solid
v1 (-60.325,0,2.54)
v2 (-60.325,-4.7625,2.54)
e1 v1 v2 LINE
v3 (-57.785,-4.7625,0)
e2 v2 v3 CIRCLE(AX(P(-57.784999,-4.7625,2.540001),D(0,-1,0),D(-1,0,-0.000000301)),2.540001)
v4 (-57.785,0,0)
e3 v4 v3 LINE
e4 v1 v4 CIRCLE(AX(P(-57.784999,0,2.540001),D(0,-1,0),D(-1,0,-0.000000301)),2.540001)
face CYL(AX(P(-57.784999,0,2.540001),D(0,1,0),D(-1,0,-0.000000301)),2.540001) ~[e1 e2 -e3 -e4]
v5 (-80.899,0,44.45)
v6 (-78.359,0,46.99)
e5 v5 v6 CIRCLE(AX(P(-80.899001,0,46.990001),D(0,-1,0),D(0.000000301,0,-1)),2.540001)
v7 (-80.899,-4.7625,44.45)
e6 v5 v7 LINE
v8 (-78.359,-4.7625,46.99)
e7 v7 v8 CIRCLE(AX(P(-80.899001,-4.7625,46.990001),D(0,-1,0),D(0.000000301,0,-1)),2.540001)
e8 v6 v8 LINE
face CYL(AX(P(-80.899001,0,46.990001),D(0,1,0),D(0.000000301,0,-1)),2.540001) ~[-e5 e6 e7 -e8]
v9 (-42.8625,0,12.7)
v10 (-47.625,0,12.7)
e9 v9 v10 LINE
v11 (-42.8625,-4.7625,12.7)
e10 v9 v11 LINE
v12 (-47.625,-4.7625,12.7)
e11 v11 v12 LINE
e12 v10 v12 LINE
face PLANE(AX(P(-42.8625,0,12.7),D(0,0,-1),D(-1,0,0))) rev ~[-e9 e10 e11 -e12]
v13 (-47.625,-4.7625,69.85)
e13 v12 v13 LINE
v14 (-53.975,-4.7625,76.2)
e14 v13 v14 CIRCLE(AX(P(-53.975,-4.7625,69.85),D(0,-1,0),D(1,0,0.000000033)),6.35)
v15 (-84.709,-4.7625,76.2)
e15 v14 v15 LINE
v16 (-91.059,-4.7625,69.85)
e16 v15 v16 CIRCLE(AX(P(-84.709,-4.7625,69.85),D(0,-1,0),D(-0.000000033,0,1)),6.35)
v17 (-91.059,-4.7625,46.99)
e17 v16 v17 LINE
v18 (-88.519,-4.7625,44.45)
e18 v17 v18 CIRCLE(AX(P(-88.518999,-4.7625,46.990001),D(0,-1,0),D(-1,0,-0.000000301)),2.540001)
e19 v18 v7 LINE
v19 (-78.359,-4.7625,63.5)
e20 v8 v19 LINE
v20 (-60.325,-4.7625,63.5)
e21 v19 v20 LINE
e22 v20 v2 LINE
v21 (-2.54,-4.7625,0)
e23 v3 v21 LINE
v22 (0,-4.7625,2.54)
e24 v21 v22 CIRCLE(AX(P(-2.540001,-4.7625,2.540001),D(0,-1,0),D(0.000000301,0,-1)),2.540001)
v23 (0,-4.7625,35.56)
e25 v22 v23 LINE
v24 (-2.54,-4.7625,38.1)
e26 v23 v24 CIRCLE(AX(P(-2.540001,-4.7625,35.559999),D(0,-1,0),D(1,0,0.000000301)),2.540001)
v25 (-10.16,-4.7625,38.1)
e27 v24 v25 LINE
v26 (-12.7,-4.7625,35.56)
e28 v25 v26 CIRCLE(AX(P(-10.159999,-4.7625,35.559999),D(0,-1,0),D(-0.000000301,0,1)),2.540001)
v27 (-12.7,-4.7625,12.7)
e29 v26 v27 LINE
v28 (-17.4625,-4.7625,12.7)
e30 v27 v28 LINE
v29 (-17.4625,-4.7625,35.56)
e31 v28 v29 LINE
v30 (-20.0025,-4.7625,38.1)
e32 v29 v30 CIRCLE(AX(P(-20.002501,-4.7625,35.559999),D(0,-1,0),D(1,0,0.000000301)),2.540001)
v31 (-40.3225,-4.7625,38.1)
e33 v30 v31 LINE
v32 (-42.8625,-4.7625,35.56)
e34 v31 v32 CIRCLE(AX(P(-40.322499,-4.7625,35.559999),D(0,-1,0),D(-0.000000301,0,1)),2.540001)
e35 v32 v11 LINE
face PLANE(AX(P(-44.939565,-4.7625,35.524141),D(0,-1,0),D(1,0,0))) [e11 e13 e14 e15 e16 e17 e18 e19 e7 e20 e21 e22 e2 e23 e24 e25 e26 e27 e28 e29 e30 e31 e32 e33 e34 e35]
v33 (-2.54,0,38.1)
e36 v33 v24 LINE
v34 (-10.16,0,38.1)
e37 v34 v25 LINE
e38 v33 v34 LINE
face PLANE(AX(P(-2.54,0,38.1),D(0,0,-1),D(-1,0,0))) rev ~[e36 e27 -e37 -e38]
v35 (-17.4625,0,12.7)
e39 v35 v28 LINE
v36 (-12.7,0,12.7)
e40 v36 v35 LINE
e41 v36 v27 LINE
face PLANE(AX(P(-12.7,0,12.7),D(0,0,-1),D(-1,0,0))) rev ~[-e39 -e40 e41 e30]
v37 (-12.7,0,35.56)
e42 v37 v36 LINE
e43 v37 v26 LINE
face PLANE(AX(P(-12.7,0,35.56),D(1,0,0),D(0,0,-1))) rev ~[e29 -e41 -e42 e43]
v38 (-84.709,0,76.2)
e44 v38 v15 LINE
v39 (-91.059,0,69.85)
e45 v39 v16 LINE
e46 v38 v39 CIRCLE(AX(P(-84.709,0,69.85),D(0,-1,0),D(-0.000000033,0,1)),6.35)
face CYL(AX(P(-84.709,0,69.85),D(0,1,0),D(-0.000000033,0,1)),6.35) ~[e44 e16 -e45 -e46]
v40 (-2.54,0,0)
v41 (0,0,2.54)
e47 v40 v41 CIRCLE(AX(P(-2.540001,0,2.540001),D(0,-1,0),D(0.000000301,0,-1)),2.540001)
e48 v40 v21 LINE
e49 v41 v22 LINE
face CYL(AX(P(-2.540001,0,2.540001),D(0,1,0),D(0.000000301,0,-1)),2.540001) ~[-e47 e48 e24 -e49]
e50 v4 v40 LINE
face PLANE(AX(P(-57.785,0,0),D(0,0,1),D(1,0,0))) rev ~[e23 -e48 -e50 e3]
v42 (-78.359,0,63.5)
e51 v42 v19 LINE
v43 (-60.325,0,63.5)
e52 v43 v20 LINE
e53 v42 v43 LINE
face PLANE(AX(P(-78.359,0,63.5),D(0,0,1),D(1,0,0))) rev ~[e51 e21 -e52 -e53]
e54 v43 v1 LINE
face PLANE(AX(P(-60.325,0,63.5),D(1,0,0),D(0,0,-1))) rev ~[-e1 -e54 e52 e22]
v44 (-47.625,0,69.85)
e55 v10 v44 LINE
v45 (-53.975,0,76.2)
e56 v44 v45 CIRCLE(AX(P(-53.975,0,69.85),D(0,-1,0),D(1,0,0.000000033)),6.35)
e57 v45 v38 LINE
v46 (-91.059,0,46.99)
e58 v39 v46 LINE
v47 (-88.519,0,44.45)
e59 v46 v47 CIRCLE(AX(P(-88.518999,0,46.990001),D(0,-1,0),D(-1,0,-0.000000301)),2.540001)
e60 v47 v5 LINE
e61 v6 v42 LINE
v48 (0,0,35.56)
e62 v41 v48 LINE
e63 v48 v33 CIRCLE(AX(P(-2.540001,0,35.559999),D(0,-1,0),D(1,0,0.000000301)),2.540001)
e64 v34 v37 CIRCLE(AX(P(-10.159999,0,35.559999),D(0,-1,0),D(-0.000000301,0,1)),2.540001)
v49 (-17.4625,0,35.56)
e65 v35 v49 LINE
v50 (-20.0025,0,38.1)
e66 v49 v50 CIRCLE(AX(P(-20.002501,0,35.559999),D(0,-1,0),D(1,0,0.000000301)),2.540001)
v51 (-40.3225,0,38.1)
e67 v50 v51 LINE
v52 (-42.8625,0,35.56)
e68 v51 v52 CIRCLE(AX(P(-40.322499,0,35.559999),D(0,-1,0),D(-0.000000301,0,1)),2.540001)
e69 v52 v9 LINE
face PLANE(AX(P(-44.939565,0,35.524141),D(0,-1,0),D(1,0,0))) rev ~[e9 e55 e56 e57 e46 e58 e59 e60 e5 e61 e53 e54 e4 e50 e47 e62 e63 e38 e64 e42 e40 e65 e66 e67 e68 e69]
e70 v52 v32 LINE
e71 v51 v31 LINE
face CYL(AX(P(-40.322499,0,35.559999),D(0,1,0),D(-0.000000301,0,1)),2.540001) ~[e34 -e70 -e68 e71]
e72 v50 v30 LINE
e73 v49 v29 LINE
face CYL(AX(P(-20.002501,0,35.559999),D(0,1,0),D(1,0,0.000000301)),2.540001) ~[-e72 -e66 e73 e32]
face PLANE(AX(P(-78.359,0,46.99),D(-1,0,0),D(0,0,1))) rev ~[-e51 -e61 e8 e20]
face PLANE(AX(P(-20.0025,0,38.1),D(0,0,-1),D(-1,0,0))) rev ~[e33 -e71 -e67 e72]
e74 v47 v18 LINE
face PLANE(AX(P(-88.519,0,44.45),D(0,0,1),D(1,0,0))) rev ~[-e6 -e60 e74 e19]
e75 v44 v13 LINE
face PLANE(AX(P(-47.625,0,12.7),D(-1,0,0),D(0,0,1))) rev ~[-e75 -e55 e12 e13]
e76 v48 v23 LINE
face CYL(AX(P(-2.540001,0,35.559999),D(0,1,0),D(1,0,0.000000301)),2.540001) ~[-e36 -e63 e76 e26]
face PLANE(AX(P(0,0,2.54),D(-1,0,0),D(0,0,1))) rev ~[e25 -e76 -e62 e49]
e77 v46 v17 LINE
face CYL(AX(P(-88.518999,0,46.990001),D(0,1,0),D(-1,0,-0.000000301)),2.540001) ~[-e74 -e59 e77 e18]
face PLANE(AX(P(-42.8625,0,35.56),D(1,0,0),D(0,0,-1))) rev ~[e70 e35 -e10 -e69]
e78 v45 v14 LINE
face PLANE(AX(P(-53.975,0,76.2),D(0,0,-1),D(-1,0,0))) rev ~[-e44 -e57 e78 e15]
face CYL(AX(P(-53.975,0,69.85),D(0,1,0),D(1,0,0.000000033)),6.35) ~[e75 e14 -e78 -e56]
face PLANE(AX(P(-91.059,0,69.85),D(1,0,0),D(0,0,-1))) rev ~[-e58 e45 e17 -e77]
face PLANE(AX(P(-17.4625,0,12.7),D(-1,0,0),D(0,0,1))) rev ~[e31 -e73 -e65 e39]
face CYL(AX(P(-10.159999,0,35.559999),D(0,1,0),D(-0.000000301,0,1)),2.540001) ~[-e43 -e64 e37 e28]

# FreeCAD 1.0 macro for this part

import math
import FreeCAD as App
import Part
import Sketcher
Q = App.Units.Quantity

doc = App.newDocument("Part")
body = doc.addObject("PartDesign::Body", "Body")

# Sketch on XZ plane
sketch1 = doc.addObject("Sketcher::SketchObject", "Sketch")
body.addObject(sketch1)
sketch1.AttachmentSupport = (doc.XZ_Plane, [""])
sketch1.MapMode = "FlatFace"
sketch1.addGeometry([
    Part.LineSegment(App.Vector(-57.785, 0, 0), App.Vector(-2.54, 0, 0)),  # 0
    Part.ArcOfCircle(Part.Circle(App.Vector(-2.540001, 2.540001, 0), App.Vector(0, 0, 1), 2.540001), math.radians(-89.999983), math.radians(-0.000017)),  # 1
    Part.LineSegment(App.Vector(0, 2.54, 0), App.Vector(0, 35.56, 0)),  # 2
    Part.ArcOfCircle(Part.Circle(App.Vector(-2.540001, 35.559999, 0), App.Vector(0, 0, 1), 2.540001), math.radians(0.000017), math.radians(89.999983)),  # 3
    Part.LineSegment(App.Vector(-2.54, 38.1, 0), App.Vector(-10.16, 38.1, 0)),  # 4
    Part.ArcOfCircle(Part.Circle(App.Vector(-10.159999, 35.559999, 0), App.Vector(0, 0, 1), 2.540001), math.radians(90.000017), math.radians(179.999983)),  # 5
    Part.LineSegment(App.Vector(-12.7, 35.56, 0), App.Vector(-12.7, 12.7, 0)),  # 6
    Part.LineSegment(App.Vector(-12.7, 12.7, 0), App.Vector(-17.4625, 12.7, 0)),  # 7
    Part.LineSegment(App.Vector(-17.4625, 12.7, 0), App.Vector(-17.4625, 35.56, 0)),  # 8
    Part.ArcOfCircle(Part.Circle(App.Vector(-20.002501, 35.559999, 0), App.Vector(0, 0, 1), 2.540001), math.radians(0.000017), math.radians(89.999983)),  # 9
    Part.LineSegment(App.Vector(-20.0025, 38.1, 0), App.Vector(-40.3225, 38.1, 0)),  # 10
    Part.ArcOfCircle(Part.Circle(App.Vector(-40.322499, 35.559999, 0), App.Vector(0, 0, 1), 2.540001), math.radians(90.000017), math.radians(179.999983)),  # 11
    Part.LineSegment(App.Vector(-42.8625, 35.56, 0), App.Vector(-42.8625, 12.7, 0)),  # 12
    Part.LineSegment(App.Vector(-42.8625, 12.7, 0), App.Vector(-47.625, 12.7, 0)),  # 13
    Part.LineSegment(App.Vector(-47.625, 12.7, 0), App.Vector(-47.625, 69.85, 0)),  # 14
    Part.ArcOfCircle(Part.Circle(App.Vector(-53.975, 69.85, 0), App.Vector(0, 0, 1), 6.35), math.radians(0.000002), math.radians(89.999998)),  # 15
    Part.LineSegment(App.Vector(-53.975, 76.2, 0), App.Vector(-84.709, 76.2, 0)),  # 16
    Part.ArcOfCircle(Part.Circle(App.Vector(-84.709, 69.85, 0), App.Vector(0, 0, 1), 6.35), math.radians(90.000002), math.radians(179.999998)),  # 17
    Part.LineSegment(App.Vector(-91.059, 69.85, 0), App.Vector(-91.059, 46.99, 0)),  # 18
    Part.ArcOfCircle(Part.Circle(App.Vector(-88.518999, 46.990001, 0), App.Vector(0, 0, 1), 2.540001), math.radians(-179.999983), math.radians(-90.000017)),  # 19
    Part.LineSegment(App.Vector(-88.519, 44.45, 0), App.Vector(-80.899, 44.45, 0)),  # 20
    Part.ArcOfCircle(Part.Circle(App.Vector(-80.899001, 46.990001, 0), App.Vector(0, 0, 1), 2.540001), math.radians(-89.999983), math.radians(-0.000017)),  # 21
    Part.LineSegment(App.Vector(-78.359, 46.99, 0), App.Vector(-78.359, 63.5, 0)),  # 22
    Part.LineSegment(App.Vector(-78.359, 63.5, 0), App.Vector(-60.325, 63.5, 0)),  # 23
    Part.LineSegment(App.Vector(-60.325, 63.5, 0), App.Vector(-60.325, 2.54, 0)),  # 24
    Part.ArcOfCircle(Part.Circle(App.Vector(-57.784999, 2.540001, 0), App.Vector(0, 0, 1), 2.540001), math.radians(-179.999983), math.radians(-90.000017)),  # 25
], False)
sketch1.addConstraint([
    Sketcher.Constraint("Tangent", 0, 2, 1, 1),
    Sketcher.Constraint("Tangent", 1, 2, 2, 1),
    Sketcher.Constraint("Tangent", 2, 2, 3, 1),
    Sketcher.Constraint("Tangent", 3, 2, 4, 1),
    Sketcher.Constraint("Tangent", 4, 2, 5, 1),
    Sketcher.Constraint("Tangent", 5, 2, 6, 1),
    Sketcher.Constraint("Coincident", 6, 2, 7, 1),
    Sketcher.Constraint("Coincident", 7, 2, 8, 1),
    Sketcher.Constraint("Tangent", 8, 2, 9, 1),
    Sketcher.Constraint("Tangent", 9, 2, 10, 1),
    Sketcher.Constraint("Tangent", 10, 2, 11, 1),
    Sketcher.Constraint("Tangent", 11, 2, 12, 1),
    Sketcher.Constraint("Coincident", 12, 2, 13, 1),
    Sketcher.Constraint("Coincident", 13, 2, 14, 1),
    Sketcher.Constraint("Tangent", 14, 2, 15, 1),
    Sketcher.Constraint("Tangent", 15, 2, 16, 1),
    Sketcher.Constraint("Tangent", 16, 2, 17, 1),
    Sketcher.Constraint("Tangent", 17, 2, 18, 1),
    Sketcher.Constraint("Tangent", 18, 2, 19, 1),
    Sketcher.Constraint("Tangent", 19, 2, 20, 1),
    Sketcher.Constraint("Tangent", 20, 2, 21, 1),
    Sketcher.Constraint("Tangent", 21, 2, 22, 1),
    Sketcher.Constraint("Coincident", 22, 2, 23, 1),
    Sketcher.Constraint("Coincident", 23, 2, 24, 1),
    Sketcher.Constraint("Tangent", 24, 2, 25, 1),
    Sketcher.Constraint("Tangent", 25, 2, 0, 1),
    Sketcher.Constraint("Horizontal", 0),
    Sketcher.Constraint("Vertical", 2),
    Sketcher.Constraint("Horizontal", 4),
    Sketcher.Constraint("Vertical", 6),
    Sketcher.Constraint("Horizontal", 7),
    Sketcher.Constraint("Vertical", 8),
    Sketcher.Constraint("Horizontal", 10),
    Sketcher.Constraint("Vertical", 12),
    Sketcher.Constraint("Horizontal", 13),
    Sketcher.Constraint("Vertical", 14),
    Sketcher.Constraint("Horizontal", 16),
    Sketcher.Constraint("Vertical", 18),
    Sketcher.Constraint("Horizontal", 20),
    Sketcher.Constraint("Vertical", 22),
    Sketcher.Constraint("Horizontal", 23),
    Sketcher.Constraint("Vertical", 24),
    Sketcher.Constraint("Equal", 1, 3),
    Sketcher.Constraint("Equal", 3, 5),
    Sketcher.Constraint("Equal", 5, 9),
    Sketcher.Constraint("Equal", 9, 11),
    Sketcher.Constraint("Equal", 15, 17),
    Sketcher.Constraint("Equal", 11, 19),
    Sketcher.Constraint("Equal", 19, 21),
    Sketcher.Constraint("Equal", 21, 25),
    Sketcher.Constraint("PointOnObject", 0, 2, -1),
    Sketcher.Constraint("PointOnObject", 1, 2, -2),
    Sketcher.Constraint("Horizontal", 5, 3, 9, 3),
    Sketcher.Constraint("Horizontal", 7, 2, 12, 2),
    Sketcher.Constraint("Equal", 7, 13),
    Sketcher.Constraint("Equal", 4, 20),
    Sketcher.Constraint("Equal", 12, 18),
    Sketcher.Constraint("Radius", 1, Q("0.1 in")),
    Sketcher.Constraint("Radius", 15, Q("0.25 in")),
    Sketcher.Constraint("DistanceX", 4, 2, 4, 1, Q("0.3 in")),
    Sketcher.Constraint("DistanceX", 10, 2, 10, 1, Q("0.8 in")),
    Sketcher.Constraint("DistanceY", 2, 1, 2, 2, Q("1.3 in")),
    Sketcher.Constraint("DistanceY", 6, 2, 6, 1, Q("0.9 in")),
    Sketcher.Constraint("DistanceY", 24, 2, 24, 1, Q("2.4 in")),
    Sketcher.Constraint("DistanceY", -1, 1, 15, 2, Q("3 in")),
    Sketcher.Constraint("DistanceX", 16, 2, 16, 1, Q("1.21 in")),
    Sketcher.Constraint("DistanceX", 23, 1, 23, 2, Q("0.71 in")),
    Sketcher.Constraint("DistanceX", 0, 1, 0, 2, Q("2.175 in")),
])
pad1 = doc.addObject("PartDesign::Pad", "Pad")
body.addObject(pad1)
pad1.Profile = sketch1
pad1.Length = Q("0.1875 in")

doc.recompute()
